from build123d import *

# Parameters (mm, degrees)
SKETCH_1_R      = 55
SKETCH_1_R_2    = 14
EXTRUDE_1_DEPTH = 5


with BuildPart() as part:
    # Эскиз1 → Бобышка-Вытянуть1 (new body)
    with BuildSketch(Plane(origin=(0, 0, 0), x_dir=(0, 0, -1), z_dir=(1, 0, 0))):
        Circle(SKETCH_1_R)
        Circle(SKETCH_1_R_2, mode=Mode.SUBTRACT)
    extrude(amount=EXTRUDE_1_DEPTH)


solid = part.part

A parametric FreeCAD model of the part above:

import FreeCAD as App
import Part
import Sketcher

V = App.Vector
Q = App.Units.Quantity

doc = App.newDocument("Part")
params = doc.addObject("Spreadsheet::Sheet", "Params")
for row, (alias, value) in enumerate([
    ("sketch1_diameter", "110 mm"),
    ("sketch1_diameter2", "28 mm"),
    ("pad1_length", "5 mm"),
], start=1):
    params.set(f"A{row}", alias)
    params.set(f"B{row}", "=" + value)
    params.setAlias(f"B{row}", alias)

body = doc.addObject("PartDesign::Body", "Body")

# Sketch on YZ plane
sketch1 = body.newObject("Sketcher::SketchObject", "Sketch")
sketch1.AttachmentSupport = (doc.getObject("YZ_Plane"), [""])
sketch1.MapMode = "FlatFace"
sketch1.addGeometry(Part.Circle(V(0, 0, 0), V(0, 0, 1), 55), False)
sketch1.addGeometry(Part.Circle(V(0, 0, 0), V(0, 0, 1), 14), False)
sketch1.addConstraint(Sketcher.Constraint("Coincident", 0, 3, -1, 1))
sketch1.addConstraint(Sketcher.Constraint("Coincident", 1, 3, -1, 1))
sketch1.addConstraint(Sketcher.Constraint("Diameter", 0, Q("110 mm")))
sketch1.addConstraint(Sketcher.Constraint("Diameter", 1, Q("28 mm")))
sketch1.setExpression("Constraints[2]", "Params.sketch1_diameter")
sketch1.setExpression("Constraints[3]", "Params.sketch1_diameter2")
pad1 = body.newObject("PartDesign::Pad", "Pad")
pad1.Profile = sketch1
pad1.setExpression("Length", "Params.pad1_length")

doc.recompute()
